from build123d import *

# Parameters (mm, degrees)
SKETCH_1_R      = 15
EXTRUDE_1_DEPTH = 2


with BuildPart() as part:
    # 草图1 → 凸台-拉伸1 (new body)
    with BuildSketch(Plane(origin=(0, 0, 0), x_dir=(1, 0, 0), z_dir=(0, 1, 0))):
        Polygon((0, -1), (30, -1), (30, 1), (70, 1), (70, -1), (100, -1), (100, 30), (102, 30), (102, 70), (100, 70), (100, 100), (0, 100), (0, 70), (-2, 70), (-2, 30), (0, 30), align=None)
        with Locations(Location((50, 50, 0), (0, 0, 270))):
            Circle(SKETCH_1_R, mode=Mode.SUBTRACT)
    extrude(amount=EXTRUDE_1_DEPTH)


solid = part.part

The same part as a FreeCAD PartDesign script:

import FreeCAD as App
import Part
import Sketcher
Q = App.Units.Quantity

doc = App.newDocument("Part")
params = doc.addObject("Spreadsheet::Sheet", "Params")
for row, (alias, value) in enumerate([
    ("sketch1_diameter", "30 mm"),
    ("sketch1_width", "30 mm"),
    ("sketch1_width2", "40 mm"),
    ("sketch1_width3", "2 mm"),
    ("sketch1_height", "31 mm"),
    ("pad1_length", "2 mm"),
], start=1):
    params.set(f"A{row}", alias)
    params.set(f"B{row}", "=" + value)
    params.setAlias(f"B{row}", alias)

body = doc.addObject("PartDesign::Body", "Body")

sketch1 = body.newObject("Sketcher::SketchObject", "Sketch")
sketch1.AttachmentSupport = (doc.getObject("XZ_Plane"), [""])
sketch1.MapMode = "FlatFace"
sketch1.addGeometry(Part.LineSegment(App.Vector(0, 1, 0), App.Vector(30, 1, 0)), False)
sketch1.addGeometry(Part.LineSegment(App.Vector(30, 1, 0), App.Vector(30, -1, 0)), False)
sketch1.addGeometry(Part.LineSegment(App.Vector(30, -1, 0), App.Vector(70, -1, 0)), False)
sketch1.addGeometry(Part.LineSegment(App.Vector(70, -1, 0), App.Vector(70, 1, 0)), False)
sketch1.addGeometry(Part.LineSegment(App.Vector(70, 1, 0), App.Vector(100, 1, 0)), False)
sketch1.addGeometry(Part.LineSegment(App.Vector(100, 1, 0), App.Vector(100, -30, 0)), False)
sketch1.addGeometry(Part.LineSegment(App.Vector(100, -30, 0), App.Vector(102, -30, 0)), False)
sketch1.addGeometry(Part.LineSegment(App.Vector(102, -30, 0), App.Vector(102, -70, 0)), False)
sketch1.addGeometry(Part.LineSegment(App.Vector(102, -70, 0), App.Vector(100, -70, 0)), False)
sketch1.addGeometry(Part.LineSegment(App.Vector(100, -70, 0), App.Vector(100, -100, 0)), False)
sketch1.addGeometry(Part.LineSegment(App.Vector(100, -100, 0), App.Vector(0, -100, 0)), False)
sketch1.addGeometry(Part.LineSegment(App.Vector(0, -100, 0), App.Vector(0, -70, 0)), False)
sketch1.addGeometry(Part.LineSegment(App.Vector(0, -70, 0), App.Vector(-2, -70, 0)), False)
sketch1.addGeometry(Part.LineSegment(App.Vector(-2, -70, 0), App.Vector(-2, -30, 0)), False)
sketch1.addGeometry(Part.LineSegment(App.Vector(-2, -30, 0), App.Vector(0, -30, 0)), False)
sketch1.addGeometry(Part.LineSegment(App.Vector(0, -30, 0), App.Vector(0, 1, 0)), False)
sketch1.addGeometry(Part.Circle(App.Vector(50, -50, 0), App.Vector(0, 0, 1), 15), False)
sketch1.addConstraint(Sketcher.Constraint("Coincident", 0, 2, 1, 1))
sketch1.addConstraint(Sketcher.Constraint("Coincident", 1, 2, 2, 1))
sketch1.addConstraint(Sketcher.Constraint("Coincident", 2, 2, 3, 1))
sketch1.addConstraint(Sketcher.Constraint("Coincident", 3, 2, 4, 1))
sketch1.addConstraint(Sketcher.Constraint("Coincident", 4, 2, 5, 1))
sketch1.addConstraint(Sketcher.Constraint("Coincident", 5, 2, 6, 1))
sketch1.addConstraint(Sketcher.Constraint("Coincident", 6, 2, 7, 1))
sketch1.addConstraint(Sketcher.Constraint("Coincident", 7, 2, 8, 1))
sketch1.addConstraint(Sketcher.Constraint("Coincident", 8, 2, 9, 1))
sketch1.addConstraint(Sketcher.Constraint("Coincident", 9, 2, 10, 1))
sketch1.addConstraint(Sketcher.Constraint("Coincident", 10, 2, 11, 1))
sketch1.addConstraint(Sketcher.Constraint("Coincident", 11, 2, 12, 1))
sketch1.addConstraint(Sketcher.Constraint("Coincident", 12, 2, 13, 1))
sketch1.addConstraint(Sketcher.Constraint("Coincident", 13, 2, 14, 1))
sketch1.addConstraint(Sketcher.Constraint("Coincident", 14, 2, 15, 1))
sketch1.addConstraint(Sketcher.Constraint("Coincident", 15, 2, 0, 1))
sketch1.addConstraint(Sketcher.Constraint("Horizontal", 0))
sketch1.addConstraint(Sketcher.Constraint("Vertical", 1))
sketch1.addConstraint(Sketcher.Constraint("Horizontal", 2))
sketch1.addConstraint(Sketcher.Constraint("Vertical", 3))
sketch1.addConstraint(Sketcher.Constraint("Horizontal", 4))
sketch1.addConstraint(Sketcher.Constraint("Vertical", 5))
sketch1.addConstraint(Sketcher.Constraint("Horizontal", 6))
sketch1.addConstraint(Sketcher.Constraint("Vertical", 7))
sketch1.addConstraint(Sketcher.Constraint("Horizontal", 8))
sketch1.addConstraint(Sketcher.Constraint("Vertical", 9))
sketch1.addConstraint(Sketcher.Constraint("Horizontal", 10))
sketch1.addConstraint(Sketcher.Constraint("Vertical", 11))
sketch1.addConstraint(Sketcher.Constraint("Horizontal", 12))
sketch1.addConstraint(Sketcher.Constraint("Vertical", 13))
sketch1.addConstraint(Sketcher.Constraint("Horizontal", 14))
sketch1.addConstraint(Sketcher.Constraint("Vertical", 15))
sketch1.addConstraint(Sketcher.Constraint("PointOnObject", 10, 2, -2))
sketch1.addConstraint(Sketcher.Constraint("PointOnObject", 14, 2, -2))
sketch1.addConstraint(Sketcher.Constraint("Horizontal", 0, 2, 3, 2))
sketch1.addConstraint(Sketcher.Constraint("Horizontal", 8, 2, 11, 2))
sketch1.addConstraint(Sketcher.Constraint("Horizontal", 6, 2, 13, 2))
sketch1.addConstraint(Sketcher.Constraint("Vertical", 5, 2, 8, 2))
sketch1.addConstraint(Sketcher.Constraint("Equal", 0, 4))
sketch1.addConstraint(Sketcher.Constraint("Equal", 8, 12))
sketch1.addConstraint(Sketcher.Constraint("Equal", 14, 1))
sketch1.addConstraint(Sketcher.Constraint("Equal", 2, 7))
sketch1.addConstraint(Sketcher.Constraint("Equal", 4, 9))
sketch1.addConstraint(Sketcher.Constraint("Diameter", 16, Q("30 mm")))
sketch1.addConstraint(Sketcher.Constraint("DistanceX", 0, 1, 0, 2, Q("30 mm")))
sketch1.addConstraint(Sketcher.Constraint("DistanceX", 2, 1, 2, 2, Q("40 mm")))
sketch1.addConstraint(Sketcher.Constraint("DistanceX", 6, 1, 6, 2, Q("2 mm")))
sketch1.addConstraint(Sketcher.Constraint("DistanceY", 5, 2, 5, 1, Q("31 mm")))
sketch1.addConstraint(Sketcher.Constraint("DistanceX", -1, 1, 16, 3, Q("50 mm")))
sketch1.addConstraint(Sketcher.Constraint("DistanceY", 16, 3, -1, 1, Q("50 mm")))
sketch1.addConstraint(Sketcher.Constraint("DistanceY", -1, 1, 0, 2, Q("1 mm")))
sketch1.setExpression("Constraints[43]", "Params.sketch1_diameter")
sketch1.setExpression("Constraints[44]", "Params.sketch1_width")
sketch1.setExpression("Constraints[45]", "Params.sketch1_width2")
sketch1.setExpression("Constraints[46]", "Params.sketch1_width3")
sketch1.setExpression("Constraints[47]", "Params.sketch1_height")
pad1 = body.newObject("PartDesign::Pad", "Pad")
pad1.Profile = sketch1
pad1.setExpression("Length", "Params.pad1_length")
pad1.Reversed = True

doc.recompute()
